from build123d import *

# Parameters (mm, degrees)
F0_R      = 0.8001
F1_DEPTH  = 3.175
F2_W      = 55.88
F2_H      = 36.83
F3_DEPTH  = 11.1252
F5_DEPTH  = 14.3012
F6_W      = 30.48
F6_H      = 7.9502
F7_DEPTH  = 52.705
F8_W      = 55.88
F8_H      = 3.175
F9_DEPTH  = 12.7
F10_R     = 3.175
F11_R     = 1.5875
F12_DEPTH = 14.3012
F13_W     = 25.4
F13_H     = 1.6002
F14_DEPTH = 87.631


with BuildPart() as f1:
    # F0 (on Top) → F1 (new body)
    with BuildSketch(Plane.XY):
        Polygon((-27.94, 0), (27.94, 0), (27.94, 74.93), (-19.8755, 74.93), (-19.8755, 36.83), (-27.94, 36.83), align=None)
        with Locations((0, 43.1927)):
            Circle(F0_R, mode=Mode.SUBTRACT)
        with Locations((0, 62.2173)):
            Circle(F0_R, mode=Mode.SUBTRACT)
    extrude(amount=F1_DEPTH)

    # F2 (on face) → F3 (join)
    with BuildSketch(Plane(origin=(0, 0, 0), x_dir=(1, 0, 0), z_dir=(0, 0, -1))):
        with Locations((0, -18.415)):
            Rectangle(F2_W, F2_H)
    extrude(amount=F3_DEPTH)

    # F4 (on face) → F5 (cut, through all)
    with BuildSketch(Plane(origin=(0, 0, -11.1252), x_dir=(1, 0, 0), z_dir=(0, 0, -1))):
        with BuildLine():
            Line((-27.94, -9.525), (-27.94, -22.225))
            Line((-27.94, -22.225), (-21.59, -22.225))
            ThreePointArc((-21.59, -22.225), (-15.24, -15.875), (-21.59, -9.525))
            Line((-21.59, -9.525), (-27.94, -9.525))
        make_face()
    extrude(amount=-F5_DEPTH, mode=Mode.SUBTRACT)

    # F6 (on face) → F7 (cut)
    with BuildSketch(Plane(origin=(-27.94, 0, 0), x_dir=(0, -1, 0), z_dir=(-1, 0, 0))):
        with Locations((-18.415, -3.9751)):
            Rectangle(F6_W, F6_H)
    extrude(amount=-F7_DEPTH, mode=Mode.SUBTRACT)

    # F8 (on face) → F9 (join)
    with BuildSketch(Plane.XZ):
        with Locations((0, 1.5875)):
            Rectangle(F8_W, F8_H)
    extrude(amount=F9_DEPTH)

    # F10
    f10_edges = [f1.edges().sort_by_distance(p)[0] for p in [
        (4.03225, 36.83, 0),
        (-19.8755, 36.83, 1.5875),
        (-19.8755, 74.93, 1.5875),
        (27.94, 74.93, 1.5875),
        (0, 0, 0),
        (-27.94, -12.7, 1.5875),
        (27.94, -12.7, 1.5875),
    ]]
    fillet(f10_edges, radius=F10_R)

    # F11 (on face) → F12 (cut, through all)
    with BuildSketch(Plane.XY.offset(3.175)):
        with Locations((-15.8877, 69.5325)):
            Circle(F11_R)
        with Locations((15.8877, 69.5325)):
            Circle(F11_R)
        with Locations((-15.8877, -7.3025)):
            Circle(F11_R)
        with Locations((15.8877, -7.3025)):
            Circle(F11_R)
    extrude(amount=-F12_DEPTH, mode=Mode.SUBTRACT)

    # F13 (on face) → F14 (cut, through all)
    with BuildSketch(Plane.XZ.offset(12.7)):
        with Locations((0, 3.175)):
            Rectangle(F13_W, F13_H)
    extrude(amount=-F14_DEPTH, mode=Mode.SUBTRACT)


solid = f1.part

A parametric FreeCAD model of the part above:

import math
import FreeCAD as App
import Part
import Sketcher
from FreeCAD import Vector
Q = App.Units.Quantity


def edges_at(feature, points):
    """Names of the edges that pass closest to the given points."""
    edges = feature.Shape.Edges
    near = lambda p: min(range(len(edges)), key=lambda i: edges[i].distToShape(Part.Vertex(*p))[0])
    return sorted({f"Edge{near(p) + 1}" for p in points})

doc = App.newDocument("Part")
params = doc.addObject("Spreadsheet::Sheet", "Params")
for row, (alias, value) in enumerate([
    ("sketch1_diameter", "0.063 in"),
    ("sketch1_width", "2.2 in"),
    ("sketch1_height", "1.5 in"),
    ("sketch1_height2", "2.95 in"),
    ("pad1_length", "0.125 in"),
    ("sketch2_width", "2.2 in"),
    ("sketch2_height", "1.45 in"),
    ("pad2_length", "0.438 in"),
    ("sketch3_radius", "0.25 in"),
    ("sketch3_width", "0.25 in"),
    ("sketch4_width", "1.2 in"),
    ("sketch4_height", "0.313 in"),
    ("pocket2_length", "2.075 in"),
    ("sketch5_width", "2.2 in"),
    ("sketch5_height", "0.125 in"),
    ("pad3_length", "0.5 in"),
    ("fillet_radius", "0.125 in"),
    ("sketch6_diameter", "0.125 in"),
    ("sketch7_width", "1 in"),
    ("sketch7_height", "0.063 in"),
], start=1):
    params.set(f"A{row}", alias)
    params.set(f"B{row}", "=" + value)
    params.setAlias(f"B{row}", alias)

body = doc.addObject("PartDesign::Body", "Body")

# Sketch on XY plane
sketch1 = body.newObject("Sketcher::SketchObject", "Sketch")
sketch1.AttachmentSupport = (doc.getObject("XY_Plane"), [""])
sketch1.MapMode = "FlatFace"
sketch1.addGeometry(Part.LineSegment(Vector(-27.9, 0, 0), Vector(27.9, 0, 0)), False)
sketch1.addGeometry(Part.LineSegment(Vector(27.9, 0, 0), Vector(27.9, 74.9, 0)), False)
sketch1.addGeometry(Part.LineSegment(Vector(27.9, 74.9, 0), Vector(-19.9, 74.9, 0)), False)
sketch1.addGeometry(Part.LineSegment(Vector(-19.9, 74.9, 0), Vector(-19.9, 36.8, 0)), False)
sketch1.addGeometry(Part.LineSegment(Vector(-19.9, 36.8, 0), Vector(-27.9, 36.8, 0)), False)
sketch1.addGeometry(Part.LineSegment(Vector(-27.9, 36.8, 0), Vector(-27.9, 0, 0)), False)
sketch1.addGeometry(Part.Circle(Vector(0, 43.2, 0), Vector(0, 0, 1), 0.8), False)
sketch1.addGeometry(Part.Circle(Vector(0, 62.2, 0), Vector(0, 0, 1), 0.8), False)
sketch1.addConstraint(Sketcher.Constraint("Coincident", 0, 2, 1, 1))
sketch1.addConstraint(Sketcher.Constraint("Coincident", 1, 2, 2, 1))
sketch1.addConstraint(Sketcher.Constraint("Coincident", 2, 2, 3, 1))
sketch1.addConstraint(Sketcher.Constraint("Coincident", 3, 2, 4, 1))
sketch1.addConstraint(Sketcher.Constraint("Coincident", 4, 2, 5, 1))
sketch1.addConstraint(Sketcher.Constraint("Coincident", 5, 2, 0, 1))
sketch1.addConstraint(Sketcher.Constraint("Horizontal", 0))
sketch1.addConstraint(Sketcher.Constraint("Vertical", 1))
sketch1.addConstraint(Sketcher.Constraint("Horizontal", 2))
sketch1.addConstraint(Sketcher.Constraint("Vertical", 3))
sketch1.addConstraint(Sketcher.Constraint("Horizontal", 4))
sketch1.addConstraint(Sketcher.Constraint("Vertical", 5))
sketch1.addConstraint(Sketcher.Constraint("Equal", 6, 7))
sketch1.addConstraint(Sketcher.Constraint("Symmetric", 0, 2, 5, 2, -1, 1))
sketch1.addConstraint(Sketcher.Constraint("PointOnObject", 6, 3, -2))
sketch1.addConstraint(Sketcher.Constraint("PointOnObject", 7, 3, -2))
sketch1.addConstraint(Sketcher.Constraint("Diameter", 6, Q("0.063 in")))
sketch1.addConstraint(Sketcher.Constraint("DistanceX", 0, 1, 0, 2, Q("2.2 in")))
sketch1.addConstraint(Sketcher.Constraint("DistanceY", 3, 2, 3, 1, Q("1.5 in")))
sketch1.addConstraint(Sketcher.Constraint("DistanceY", 1, 1, 1, 2, Q("2.95 in")))
sketch1.addConstraint(Sketcher.Constraint("DistanceX", 2, 2, 2, 1, Q("1.8825 in")))
sketch1.addConstraint(Sketcher.Constraint("DistanceY", 6, 3, 7, 3, Q("0.749 in")))
sketch1.addConstraint(Sketcher.Constraint("DistanceY", -1, 1, 6, 3, Q("1.7005 in")))
sketch1.setExpression("Constraints[16]", "Params.sketch1_diameter")
sketch1.setExpression("Constraints[17]", "Params.sketch1_width")
sketch1.setExpression("Constraints[18]", "Params.sketch1_height")
sketch1.setExpression("Constraints[19]", "Params.sketch1_height2")
pad1 = body.newObject("PartDesign::Pad", "Pad")
pad1.Profile = sketch1
pad1.setExpression("Length", "Params.pad1_length")

# Sketch on XY plane
sketch2 = body.newObject("Sketcher::SketchObject", "Sketch001")
sketch2.AttachmentSupport = (doc.getObject("XY_Plane"), [""])
sketch2.MapMode = "FlatFace"
sketch2.addGeometry(Part.LineSegment(Vector(-28, 0, 0), Vector(-28, 37, 0)), False)
sketch2.addGeometry(Part.LineSegment(Vector(-28, 37, 0), Vector(28, 37, 0)), False)
sketch2.addGeometry(Part.LineSegment(Vector(28, 37, 0), Vector(28, 0, 0)), False)
sketch2.addGeometry(Part.LineSegment(Vector(28, 0, 0), Vector(-28, 0, 0)), False)
sketch2.addConstraint(Sketcher.Constraint("Coincident", 0, 2, 1, 1))
sketch2.addConstraint(Sketcher.Constraint("Coincident", 1, 2, 2, 1))
sketch2.addConstraint(Sketcher.Constraint("Coincident", 2, 2, 3, 1))
sketch2.addConstraint(Sketcher.Constraint("Coincident", 3, 2, 0, 1))
sketch2.addConstraint(Sketcher.Constraint("Vertical", 0))
sketch2.addConstraint(Sketcher.Constraint("Horizontal", 1))
sketch2.addConstraint(Sketcher.Constraint("Vertical", 2))
sketch2.addConstraint(Sketcher.Constraint("Horizontal", 3))
sketch2.addConstraint(Sketcher.Constraint("Symmetric", 2, 2, 3, 2, -1, 1))
sketch2.addConstraint(Sketcher.Constraint("DistanceX", 1, 1, 1, 2, Q("2.2 in")))
sketch2.addConstraint(Sketcher.Constraint("DistanceY", 0, 1, 0, 2, Q("1.45 in")))
sketch2.setExpression("Constraints[9]", "Params.sketch2_width")
sketch2.setExpression("Constraints[10]", "Params.sketch2_height")
pad2 = body.newObject("PartDesign::Pad", "Pad001")
pad2.Profile = sketch2
pad2.setExpression("Length", "Params.pad2_length")
pad2.Reversed = True

# Sketch on XY plane
sketch3 = body.newObject("Sketcher::SketchObject", "Sketch002")
sketch3.AttachmentSupport = (doc.getObject("XY_Plane"), [""])
sketch3.MapMode = "FlatFace"
sketch3.AttachmentOffset = App.Placement(Vector(0, 0, -0.438 * 25.4), App.Rotation())
sketch3.addGeometry(Part.LineSegment(Vector(-28, 10, 0), Vector(-28, 22, 0)), False)
sketch3.addGeometry(Part.LineSegment(Vector(-28, 22, 0), Vector(-22, 22, 0)), False)
sketch3.addGeometry(Part.ArcOfCircle(Part.Circle(Vector(-22, 16, 0), Vector(0, 0, 1), 6), math.radians(-90), math.radians(90)), False)
sketch3.addGeometry(Part.LineSegment(Vector(-22, 10, 0), Vector(-28, 10, 0)), False)
sketch3.addConstraint(Sketcher.Constraint("Coincident", 0, 2, 1, 1))
sketch3.addConstraint(Sketcher.Constraint("Tangent", 1, 2, 2, 2))
sketch3.addConstraint(Sketcher.Constraint("Tangent", 2, 1, 3, 1))
sketch3.addConstraint(Sketcher.Constraint("Coincident", 3, 2, 0, 1))
sketch3.addConstraint(Sketcher.Constraint("Vertical", 0))
sketch3.addConstraint(Sketcher.Constraint("Horizontal", 1))
sketch3.addConstraint(Sketcher.Constraint("Horizontal", 3))
sketch3.addConstraint(Sketcher.Constraint("Radius", 2, Q("0.25 in")))
sketch3.addConstraint(Sketcher.Constraint("DistanceX", 1, 1, 1, 2, Q("0.25 in")))
sketch3.addConstraint(Sketcher.Constraint("DistanceX", 0, 2, -1, 1, Q("1.1 in")))
sketch3.addConstraint(Sketcher.Constraint("DistanceY", -1, 1, 2, 3, Q("0.625 in")))
sketch3.setExpression("Constraints[7]", "Params.sketch3_radius")
sketch3.setExpression("Constraints[8]", "Params.sketch3_width")
pocket1 = body.newObject("PartDesign::Pocket", "Pocket")
pocket1.Profile = sketch3
pocket1.Type = "ThroughAll"
pocket1.Reversed = True

# Sketch on YZ plane
sketch4 = body.newObject("Sketcher::SketchObject", "Sketch003")
sketch4.AttachmentSupport = (doc.getObject("YZ_Plane"), [""])
sketch4.MapMode = "FlatFace"
sketch4.AttachmentOffset = App.Placement(Vector(0, 0, -1.1 * 25.4), App.Rotation())
sketch4.addGeometry(Part.LineSegment(Vector(34, 0, 0), Vector(34, -8, 0)), False)
sketch4.addGeometry(Part.LineSegment(Vector(34, -8, 0), Vector(3, -8, 0)), False)
sketch4.addGeometry(Part.LineSegment(Vector(3, -8, 0), Vector(3, 0, 0)), False)
sketch4.addGeometry(Part.LineSegment(Vector(3, 0, 0), Vector(34, 0, 0)), False)
sketch4.addConstraint(Sketcher.Constraint("Coincident", 0, 2, 1, 1))
sketch4.addConstraint(Sketcher.Constraint("Coincident", 1, 2, 2, 1))
sketch4.addConstraint(Sketcher.Constraint("Coincident", 2, 2, 3, 1))
sketch4.addConstraint(Sketcher.Constraint("Coincident", 3, 2, 0, 1))
sketch4.addConstraint(Sketcher.Constraint("Vertical", 0))
sketch4.addConstraint(Sketcher.Constraint("Horizontal", 1))
sketch4.addConstraint(Sketcher.Constraint("Vertical", 2))
sketch4.addConstraint(Sketcher.Constraint("Horizontal", 3))
sketch4.addConstraint(Sketcher.Constraint("PointOnObject", 2, 2, -1))
sketch4.addConstraint(Sketcher.Constraint("DistanceX", 1, 2, 1, 1, Q("1.2 in")))
sketch4.addConstraint(Sketcher.Constraint("DistanceY", 0, 2, 0, 1, Q("0.313 in")))
sketch4.addConstraint(Sketcher.Constraint("DistanceX", -1, 1, 0, 2, Q("1.325 in")))
sketch4.setExpression("Constraints[9]", "Params.sketch4_width")
sketch4.setExpression("Constraints[10]", "Params.sketch4_height")
pocket2 = body.newObject("PartDesign::Pocket", "Pocket001")
pocket2.Profile = sketch4
pocket2.setExpression("Length", "Params.pocket2_length")
pocket2.Reversed = True

# Sketch on XZ plane
sketch5 = body.newObject("Sketcher::SketchObject", "Sketch004")
sketch5.AttachmentSupport = (doc.getObject("XZ_Plane"), [""])
sketch5.MapMode = "FlatFace"
sketch5.addGeometry(Part.LineSegment(Vector(-27.9, 3.2, 0), Vector(-27.9, 0, 0)), False)
sketch5.addGeometry(Part.LineSegment(Vector(-27.9, 0, 0), Vector(27.9, 0, 0)), False)
sketch5.addGeometry(Part.LineSegment(Vector(27.9, 0, 0), Vector(27.9, 3.2, 0)), False)
sketch5.addGeometry(Part.LineSegment(Vector(27.9, 3.2, 0), Vector(-27.9, 3.2, 0)), False)
sketch5.addConstraint(Sketcher.Constraint("Coincident", 0, 2, 1, 1))
sketch5.addConstraint(Sketcher.Constraint("Coincident", 1, 2, 2, 1))
sketch5.addConstraint(Sketcher.Constraint("Coincident", 2, 2, 3, 1))
sketch5.addConstraint(Sketcher.Constraint("Coincident", 3, 2, 0, 1))
sketch5.addConstraint(Sketcher.Constraint("Vertical", 0))
sketch5.addConstraint(Sketcher.Constraint("Horizontal", 1))
sketch5.addConstraint(Sketcher.Constraint("Vertical", 2))
sketch5.addConstraint(Sketcher.Constraint("Horizontal", 3))
sketch5.addConstraint(Sketcher.Constraint("Symmetric", 0, 2, 1, 2, -1, 1))
sketch5.addConstraint(Sketcher.Constraint("DistanceX", 1, 1, 1, 2, Q("2.2 in")))
sketch5.addConstraint(Sketcher.Constraint("DistanceY", 0, 2, 0, 1, Q("0.125 in")))
sketch5.setExpression("Constraints[9]", "Params.sketch5_width")
sketch5.setExpression("Constraints[10]", "Params.sketch5_height")
pad3 = body.newObject("PartDesign::Pad", "Pad002")
pad3.Profile = sketch5
pad3.setExpression("Length", "Params.pad3_length")
doc.recompute()

fillet = body.newObject("PartDesign::Fillet", "Fillet")
fillet.Base = (pad3, edges_at(pad3, [
    (4.032, 36.83, 0),
    (-19.875, 36.83, 1.587),
    (-19.875, 74.93, 1.587),
    (27.94, 74.93, 1.587),
    (0, 0, 0),
    (-27.94, -12.7, 1.587),
    (27.94, -12.7, 1.587),
]))
fillet.setExpression("Radius", "Params.fillet_radius")

# Sketch on XY plane
sketch6 = body.newObject("Sketcher::SketchObject", "Sketch005")
sketch6.AttachmentSupport = (doc.getObject("XY_Plane"), [""])
sketch6.MapMode = "FlatFace"
sketch6.AttachmentOffset = App.Placement(Vector(0, 0, 0.125 * 25.4), App.Rotation())
sketch6.addGeometry(Part.Circle(Vector(-15.9, 69.5, 0), Vector(0, 0, 1), 1.6), False)
sketch6.addGeometry(Part.Circle(Vector(15.9, 69.5, 0), Vector(0, 0, 1), 1.6), False)
sketch6.addGeometry(Part.Circle(Vector(-15.9, -7.3, 0), Vector(0, 0, 1), 1.6), False)
sketch6.addGeometry(Part.Circle(Vector(15.9, -7.3, 0), Vector(0, 0, 1), 1.6), False)
sketch6.addConstraint(Sketcher.Constraint("Equal", 0, 1))
sketch6.addConstraint(Sketcher.Constraint("Equal", 1, 2))
sketch6.addConstraint(Sketcher.Constraint("Equal", 2, 3))
sketch6.addConstraint(Sketcher.Constraint("Symmetric", 0, 3, 1, 3, -2))
sketch6.addConstraint(Sketcher.Constraint("Symmetric", 2, 3, 3, 3, -2))
sketch6.addConstraint(Sketcher.Constraint("Vertical", 0, 3, 2, 3))
sketch6.addConstraint(Sketcher.Constraint("Diameter", 0, Q("0.125 in")))
sketch6.addConstraint(Sketcher.Constraint("DistanceX", 0, 3, 1, 3, Q("1.251 in")))
sketch6.addConstraint(Sketcher.Constraint("DistanceY", 2, 3, 0, 3, Q("3.025 in")))
sketch6.addConstraint(Sketcher.Constraint("DistanceY", -1, 1, 0, 3, Q("2.7375 in")))
sketch6.setExpression("Constraints[6]", "Params.sketch6_diameter")
pocket3 = body.newObject("PartDesign::Pocket", "Pocket002")
pocket3.Profile = sketch6
pocket3.Type = "ThroughAll"

# Sketch on XZ plane
sketch7 = body.newObject("Sketcher::SketchObject", "Sketch006")
sketch7.AttachmentSupport = (doc.getObject("XZ_Plane"), [""])
sketch7.MapMode = "FlatFace"
sketch7.AttachmentOffset = App.Placement(Vector(0, 0, 0.5 * 25.4), App.Rotation())
sketch7.addGeometry(Part.LineSegment(Vector(-12.7, 4, 0), Vector(-12.7, 2.4, 0)), False)
sketch7.addGeometry(Part.LineSegment(Vector(-12.7, 2.4, 0), Vector(12.7, 2.4, 0)), False)
sketch7.addGeometry(Part.LineSegment(Vector(12.7, 2.4, 0), Vector(12.7, 4, 0)), False)
sketch7.addGeometry(Part.LineSegment(Vector(12.7, 4, 0), Vector(-12.7, 4, 0)), False)
sketch7.addConstraint(Sketcher.Constraint("Coincident", 0, 2, 1, 1))
sketch7.addConstraint(Sketcher.Constraint("Coincident", 1, 2, 2, 1))
sketch7.addConstraint(Sketcher.Constraint("Coincident", 2, 2, 3, 1))
sketch7.addConstraint(Sketcher.Constraint("Coincident", 3, 2, 0, 1))
sketch7.addConstraint(Sketcher.Constraint("Vertical", 0))
sketch7.addConstraint(Sketcher.Constraint("Horizontal", 1))
sketch7.addConstraint(Sketcher.Constraint("Vertical", 2))
sketch7.addConstraint(Sketcher.Constraint("Horizontal", 3))
sketch7.addConstraint(Sketcher.Constraint("DistanceX", 1, 1, 1, 2, Q("1 in")))
sketch7.addConstraint(Sketcher.Constraint("DistanceX", 0, 2, -1, 1, Q("0.5 in")))
sketch7.addConstraint(Sketcher.Constraint("DistanceY", 0, 2, 0, 1, Q("0.063 in")))
sketch7.addConstraint(Sketcher.Constraint("DistanceY", -1, 1, 0, 2, Q("0.0935 in")))
sketch7.setExpression("Constraints[8]", "Params.sketch7_width")
sketch7.setExpression("Constraints[10]", "Params.sketch7_height")
pocket4 = body.newObject("PartDesign::Pocket", "Pocket003")
pocket4.Profile = sketch7
pocket4.Type = "ThroughAll"

doc.recompute()
